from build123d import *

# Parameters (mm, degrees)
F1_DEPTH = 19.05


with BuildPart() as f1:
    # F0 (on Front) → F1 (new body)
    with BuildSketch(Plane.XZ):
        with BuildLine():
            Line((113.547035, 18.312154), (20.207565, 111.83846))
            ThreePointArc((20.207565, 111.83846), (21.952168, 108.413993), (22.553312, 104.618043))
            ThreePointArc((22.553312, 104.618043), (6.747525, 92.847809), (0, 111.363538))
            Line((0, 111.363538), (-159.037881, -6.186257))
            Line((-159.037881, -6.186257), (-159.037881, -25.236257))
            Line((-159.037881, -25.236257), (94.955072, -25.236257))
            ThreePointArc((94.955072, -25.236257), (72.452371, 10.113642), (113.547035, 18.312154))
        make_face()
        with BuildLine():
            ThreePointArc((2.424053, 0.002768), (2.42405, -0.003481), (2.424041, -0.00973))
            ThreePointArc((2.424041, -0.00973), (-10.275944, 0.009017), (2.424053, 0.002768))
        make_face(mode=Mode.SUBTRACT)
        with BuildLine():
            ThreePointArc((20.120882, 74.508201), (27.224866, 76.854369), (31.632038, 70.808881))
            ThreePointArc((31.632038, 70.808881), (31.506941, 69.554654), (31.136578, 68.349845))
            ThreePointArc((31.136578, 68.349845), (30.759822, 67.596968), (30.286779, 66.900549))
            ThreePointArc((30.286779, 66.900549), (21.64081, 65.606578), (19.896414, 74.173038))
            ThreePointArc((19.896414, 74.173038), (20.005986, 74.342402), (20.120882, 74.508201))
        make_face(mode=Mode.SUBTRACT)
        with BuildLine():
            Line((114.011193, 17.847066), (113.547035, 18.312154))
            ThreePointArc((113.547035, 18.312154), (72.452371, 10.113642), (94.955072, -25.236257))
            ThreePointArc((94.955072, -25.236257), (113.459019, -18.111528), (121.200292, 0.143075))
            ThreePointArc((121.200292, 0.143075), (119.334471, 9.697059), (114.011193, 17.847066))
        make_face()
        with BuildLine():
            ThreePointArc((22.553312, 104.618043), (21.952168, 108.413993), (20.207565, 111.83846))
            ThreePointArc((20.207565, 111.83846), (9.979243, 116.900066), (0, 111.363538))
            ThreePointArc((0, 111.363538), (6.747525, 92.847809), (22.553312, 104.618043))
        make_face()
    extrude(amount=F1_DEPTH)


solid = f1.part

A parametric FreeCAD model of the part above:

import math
import FreeCAD as App
import Part
import Sketcher
Q = App.Units.Quantity

doc = App.newDocument("Part")
body = doc.addObject("PartDesign::Body", "Body")

sketch1 = body.newObject("Sketcher::SketchObject", "Sketch")
sketch1.AttachmentSupport = (doc.getObject("XZ_Plane"), [""])
sketch1.MapMode = "FlatFace"
sketch1.addGeometry([
    Part.LineSegment(App.Vector(113.547035, 18.312154, 0), App.Vector(20.207565, 111.83846, 0)),
    Part.ArcOfCircle(Part.Circle(App.Vector(10.267897, 104.618042, 0), App.Vector(0, 0, 1), 12.285415), math.radians(35.995572), math.radians(146.697085)),
    Part.LineSegment(App.Vector(0, 111.363538, 0), App.Vector(-159.037881, -6.186257, 0)),
    Part.LineSegment(App.Vector(-159.037881, -6.186257, 0), App.Vector(-159.037881, -25.236257, 0)),
    Part.LineSegment(App.Vector(-159.037881, -25.236257, 0), App.Vector(94.955072, -25.236257, 0)),
    Part.ArcOfCircle(Part.Circle(App.Vector(95.806677, 0.143074, 0), App.Vector(0, 0, 1), 25.393615), math.radians(-91.921842), math.radians(0.000001)),
    Part.ArcOfCircle(Part.Circle(App.Vector(95.806679, 0.143076, 0), App.Vector(0, 0, 1), 25.393613), math.radians(-0.000003), math.radians(44.201413)),
    Part.LineSegment(App.Vector(114.011193, 17.847066, 0), App.Vector(113.547035, 18.312154, 0)),
    Part.ArcOfCircle(Part.Circle(App.Vector(-3.925947, 0.002616, 0), App.Vector(0, 0, 1), 6.35), math.radians(0.001372), math.radians(359.888603)),
    Part.ArcOfCircle(Part.Circle(App.Vector(-4.084291, 0.002768, 0), App.Vector(0, 0, 1), 6.508344), math.radians(-0.110025), math.radians(0)),
    Part.ArcOfCircle(Part.Circle(App.Vector(25.282505, 70.808571, 0), App.Vector(0, 0, 1), 6.35056), math.radians(144.368665), math.radians(148.00869)),
    Part.ArcOfCircle(Part.Circle(App.Vector(25.282038, 70.808882, 0), App.Vector(0, 0, 1), 6.35), math.radians(-0.000006), math.radians(144.368494)),
    Part.ArcOfCircle(Part.Circle(App.Vector(25.282055, 70.808878, 0), App.Vector(0, 0, 1), 6.349983), math.radians(-22.783518), math.radians(0.000025)),
    Part.ArcOfCircle(Part.Circle(App.Vector(25.282105, 70.808843, 0), App.Vector(0, 0, 1), 6.349923), math.radians(-37.987306), math.radians(-22.783402)),
    Part.ArcOfCircle(Part.Circle(App.Vector(25.282038, 70.808881, 0), App.Vector(0, 0, 1), 6.35), math.radians(148.008831), math.radians(322.012802)),
], False)
sketch1.addConstraint([
    Sketcher.Constraint("Coincident", 0, 2, 1, 1),
    Sketcher.Constraint("Coincident", 1, 2, 2, 1),
    Sketcher.Constraint("Coincident", 2, 2, 3, 1),
    Sketcher.Constraint("Coincident", 3, 2, 4, 1),
    Sketcher.Constraint("Coincident", 4, 2, 5, 1),
    Sketcher.Constraint("Coincident", 5, 2, 6, 1),
    Sketcher.Constraint("Coincident", 6, 2, 7, 1),
    Sketcher.Constraint("Coincident", 7, 2, 0, 1),
    Sketcher.Constraint("Coincident", 8, 1, 9, 2),
    Sketcher.Constraint("Coincident", 9, 1, 8, 2),
    Sketcher.Constraint("Coincident", 10, 1, 11, 2),
    Sketcher.Constraint("Coincident", 11, 1, 12, 2),
    Sketcher.Constraint("Coincident", 12, 1, 13, 2),
    Sketcher.Constraint("Coincident", 13, 1, 14, 2),
    Sketcher.Constraint("Coincident", 14, 1, 10, 2),
    Sketcher.Constraint("Vertical", 3),
    Sketcher.Constraint("Horizontal", 4),
    Sketcher.Constraint("Coincident", 6, 3, 5, 3),
    Sketcher.Constraint("Coincident", 14, 3, 11, 3),
    Sketcher.Constraint("PointOnObject", 1, 2, -2),
    Sketcher.Constraint("Radius", 8, Q("0.25 in")),
    Sketcher.Constraint("Radius", 11, Q("0.25 in")),
    Sketcher.Constraint("Radius", 14, Q("0.25 in")),
    Sketcher.Constraint("DistanceY", 3, 2, 3, 1, Q("0.75 in")),
    Sketcher.Constraint("Radius", 10, 6.35056),
    Sketcher.Constraint("Radius", 1, 12.285415),
    Sketcher.Constraint("Radius", 5, 25.393615),
    Sketcher.Constraint("Radius", 9, 6.508344),
    Sketcher.Constraint("Radius", 12, 6.349983),
    Sketcher.Constraint("Radius", 13, 6.349923),
    Sketcher.Constraint("DistanceY", -1, 1, 10, 1, 74.508201),
    Sketcher.Constraint("DistanceX", 13, 3, 10, 3, 0.000399),
    Sketcher.Constraint("DistanceY", 13, 3, 1, 3, 33.809199),
    Sketcher.Constraint("DistanceX", 6, 2, 5, 2, 7.189099),
    Sketcher.Constraint("DistanceY", 9, 1, 8, 1, 0.012498),
    Sketcher.Constraint("DistanceY", 9, 1, 9, 3, 0.012498),
    Sketcher.Constraint("DistanceY", 9, 1, 10, 3, 70.818301),
    Sketcher.Constraint("DistanceY", 12, 1, 13, 3, 2.458998),
    Sketcher.Constraint("DistanceX", 13, 1, 12, 1, 0.849799),
    Sketcher.Constraint("DistanceX", 4, 1, 4, 2, 253.992953),
    Sketcher.Constraint("DistanceX", -1, 1, 6, 3, 95.806679),
    Sketcher.Constraint("DistanceX", 9, 3, -1, 1, 4.084291),
    Sketcher.Constraint("DistanceY", -1, 1, 9, 3, 0.002768),
    Sketcher.Constraint("DistanceX", -1, 1, 11, 3, 25.282038),
    Sketcher.Constraint("DistanceY", -1, 1, 0, 2, 111.83846),
    Sketcher.Constraint("DistanceX", 2, 2, -1, 1, 159.037881),
    Sketcher.Constraint("DistanceY", -1, 1, 11, 1, 70.808881),
    Sketcher.Constraint("DistanceX", 1, 3, 5, 3, 85.53878),
    Sketcher.Constraint("DistanceY", 5, 3, 1, 3, 104.474968),
    Sketcher.Constraint("DistanceY", 4, 2, 5, 2, 25.379332),
    Sketcher.Constraint("DistanceX", 7, 2, 6, 2, 0.464158),
    Sketcher.Constraint("DistanceY", 5, 2, 7, 2, 18.169079),
    Sketcher.Constraint("DistanceX", 14, 1, 12, 3, 5.385641),
])
pad1 = body.newObject("PartDesign::Pad", "Pad")
pad1.Profile = sketch1
pad1.Length = Q("0.75 in")

doc.recompute()
